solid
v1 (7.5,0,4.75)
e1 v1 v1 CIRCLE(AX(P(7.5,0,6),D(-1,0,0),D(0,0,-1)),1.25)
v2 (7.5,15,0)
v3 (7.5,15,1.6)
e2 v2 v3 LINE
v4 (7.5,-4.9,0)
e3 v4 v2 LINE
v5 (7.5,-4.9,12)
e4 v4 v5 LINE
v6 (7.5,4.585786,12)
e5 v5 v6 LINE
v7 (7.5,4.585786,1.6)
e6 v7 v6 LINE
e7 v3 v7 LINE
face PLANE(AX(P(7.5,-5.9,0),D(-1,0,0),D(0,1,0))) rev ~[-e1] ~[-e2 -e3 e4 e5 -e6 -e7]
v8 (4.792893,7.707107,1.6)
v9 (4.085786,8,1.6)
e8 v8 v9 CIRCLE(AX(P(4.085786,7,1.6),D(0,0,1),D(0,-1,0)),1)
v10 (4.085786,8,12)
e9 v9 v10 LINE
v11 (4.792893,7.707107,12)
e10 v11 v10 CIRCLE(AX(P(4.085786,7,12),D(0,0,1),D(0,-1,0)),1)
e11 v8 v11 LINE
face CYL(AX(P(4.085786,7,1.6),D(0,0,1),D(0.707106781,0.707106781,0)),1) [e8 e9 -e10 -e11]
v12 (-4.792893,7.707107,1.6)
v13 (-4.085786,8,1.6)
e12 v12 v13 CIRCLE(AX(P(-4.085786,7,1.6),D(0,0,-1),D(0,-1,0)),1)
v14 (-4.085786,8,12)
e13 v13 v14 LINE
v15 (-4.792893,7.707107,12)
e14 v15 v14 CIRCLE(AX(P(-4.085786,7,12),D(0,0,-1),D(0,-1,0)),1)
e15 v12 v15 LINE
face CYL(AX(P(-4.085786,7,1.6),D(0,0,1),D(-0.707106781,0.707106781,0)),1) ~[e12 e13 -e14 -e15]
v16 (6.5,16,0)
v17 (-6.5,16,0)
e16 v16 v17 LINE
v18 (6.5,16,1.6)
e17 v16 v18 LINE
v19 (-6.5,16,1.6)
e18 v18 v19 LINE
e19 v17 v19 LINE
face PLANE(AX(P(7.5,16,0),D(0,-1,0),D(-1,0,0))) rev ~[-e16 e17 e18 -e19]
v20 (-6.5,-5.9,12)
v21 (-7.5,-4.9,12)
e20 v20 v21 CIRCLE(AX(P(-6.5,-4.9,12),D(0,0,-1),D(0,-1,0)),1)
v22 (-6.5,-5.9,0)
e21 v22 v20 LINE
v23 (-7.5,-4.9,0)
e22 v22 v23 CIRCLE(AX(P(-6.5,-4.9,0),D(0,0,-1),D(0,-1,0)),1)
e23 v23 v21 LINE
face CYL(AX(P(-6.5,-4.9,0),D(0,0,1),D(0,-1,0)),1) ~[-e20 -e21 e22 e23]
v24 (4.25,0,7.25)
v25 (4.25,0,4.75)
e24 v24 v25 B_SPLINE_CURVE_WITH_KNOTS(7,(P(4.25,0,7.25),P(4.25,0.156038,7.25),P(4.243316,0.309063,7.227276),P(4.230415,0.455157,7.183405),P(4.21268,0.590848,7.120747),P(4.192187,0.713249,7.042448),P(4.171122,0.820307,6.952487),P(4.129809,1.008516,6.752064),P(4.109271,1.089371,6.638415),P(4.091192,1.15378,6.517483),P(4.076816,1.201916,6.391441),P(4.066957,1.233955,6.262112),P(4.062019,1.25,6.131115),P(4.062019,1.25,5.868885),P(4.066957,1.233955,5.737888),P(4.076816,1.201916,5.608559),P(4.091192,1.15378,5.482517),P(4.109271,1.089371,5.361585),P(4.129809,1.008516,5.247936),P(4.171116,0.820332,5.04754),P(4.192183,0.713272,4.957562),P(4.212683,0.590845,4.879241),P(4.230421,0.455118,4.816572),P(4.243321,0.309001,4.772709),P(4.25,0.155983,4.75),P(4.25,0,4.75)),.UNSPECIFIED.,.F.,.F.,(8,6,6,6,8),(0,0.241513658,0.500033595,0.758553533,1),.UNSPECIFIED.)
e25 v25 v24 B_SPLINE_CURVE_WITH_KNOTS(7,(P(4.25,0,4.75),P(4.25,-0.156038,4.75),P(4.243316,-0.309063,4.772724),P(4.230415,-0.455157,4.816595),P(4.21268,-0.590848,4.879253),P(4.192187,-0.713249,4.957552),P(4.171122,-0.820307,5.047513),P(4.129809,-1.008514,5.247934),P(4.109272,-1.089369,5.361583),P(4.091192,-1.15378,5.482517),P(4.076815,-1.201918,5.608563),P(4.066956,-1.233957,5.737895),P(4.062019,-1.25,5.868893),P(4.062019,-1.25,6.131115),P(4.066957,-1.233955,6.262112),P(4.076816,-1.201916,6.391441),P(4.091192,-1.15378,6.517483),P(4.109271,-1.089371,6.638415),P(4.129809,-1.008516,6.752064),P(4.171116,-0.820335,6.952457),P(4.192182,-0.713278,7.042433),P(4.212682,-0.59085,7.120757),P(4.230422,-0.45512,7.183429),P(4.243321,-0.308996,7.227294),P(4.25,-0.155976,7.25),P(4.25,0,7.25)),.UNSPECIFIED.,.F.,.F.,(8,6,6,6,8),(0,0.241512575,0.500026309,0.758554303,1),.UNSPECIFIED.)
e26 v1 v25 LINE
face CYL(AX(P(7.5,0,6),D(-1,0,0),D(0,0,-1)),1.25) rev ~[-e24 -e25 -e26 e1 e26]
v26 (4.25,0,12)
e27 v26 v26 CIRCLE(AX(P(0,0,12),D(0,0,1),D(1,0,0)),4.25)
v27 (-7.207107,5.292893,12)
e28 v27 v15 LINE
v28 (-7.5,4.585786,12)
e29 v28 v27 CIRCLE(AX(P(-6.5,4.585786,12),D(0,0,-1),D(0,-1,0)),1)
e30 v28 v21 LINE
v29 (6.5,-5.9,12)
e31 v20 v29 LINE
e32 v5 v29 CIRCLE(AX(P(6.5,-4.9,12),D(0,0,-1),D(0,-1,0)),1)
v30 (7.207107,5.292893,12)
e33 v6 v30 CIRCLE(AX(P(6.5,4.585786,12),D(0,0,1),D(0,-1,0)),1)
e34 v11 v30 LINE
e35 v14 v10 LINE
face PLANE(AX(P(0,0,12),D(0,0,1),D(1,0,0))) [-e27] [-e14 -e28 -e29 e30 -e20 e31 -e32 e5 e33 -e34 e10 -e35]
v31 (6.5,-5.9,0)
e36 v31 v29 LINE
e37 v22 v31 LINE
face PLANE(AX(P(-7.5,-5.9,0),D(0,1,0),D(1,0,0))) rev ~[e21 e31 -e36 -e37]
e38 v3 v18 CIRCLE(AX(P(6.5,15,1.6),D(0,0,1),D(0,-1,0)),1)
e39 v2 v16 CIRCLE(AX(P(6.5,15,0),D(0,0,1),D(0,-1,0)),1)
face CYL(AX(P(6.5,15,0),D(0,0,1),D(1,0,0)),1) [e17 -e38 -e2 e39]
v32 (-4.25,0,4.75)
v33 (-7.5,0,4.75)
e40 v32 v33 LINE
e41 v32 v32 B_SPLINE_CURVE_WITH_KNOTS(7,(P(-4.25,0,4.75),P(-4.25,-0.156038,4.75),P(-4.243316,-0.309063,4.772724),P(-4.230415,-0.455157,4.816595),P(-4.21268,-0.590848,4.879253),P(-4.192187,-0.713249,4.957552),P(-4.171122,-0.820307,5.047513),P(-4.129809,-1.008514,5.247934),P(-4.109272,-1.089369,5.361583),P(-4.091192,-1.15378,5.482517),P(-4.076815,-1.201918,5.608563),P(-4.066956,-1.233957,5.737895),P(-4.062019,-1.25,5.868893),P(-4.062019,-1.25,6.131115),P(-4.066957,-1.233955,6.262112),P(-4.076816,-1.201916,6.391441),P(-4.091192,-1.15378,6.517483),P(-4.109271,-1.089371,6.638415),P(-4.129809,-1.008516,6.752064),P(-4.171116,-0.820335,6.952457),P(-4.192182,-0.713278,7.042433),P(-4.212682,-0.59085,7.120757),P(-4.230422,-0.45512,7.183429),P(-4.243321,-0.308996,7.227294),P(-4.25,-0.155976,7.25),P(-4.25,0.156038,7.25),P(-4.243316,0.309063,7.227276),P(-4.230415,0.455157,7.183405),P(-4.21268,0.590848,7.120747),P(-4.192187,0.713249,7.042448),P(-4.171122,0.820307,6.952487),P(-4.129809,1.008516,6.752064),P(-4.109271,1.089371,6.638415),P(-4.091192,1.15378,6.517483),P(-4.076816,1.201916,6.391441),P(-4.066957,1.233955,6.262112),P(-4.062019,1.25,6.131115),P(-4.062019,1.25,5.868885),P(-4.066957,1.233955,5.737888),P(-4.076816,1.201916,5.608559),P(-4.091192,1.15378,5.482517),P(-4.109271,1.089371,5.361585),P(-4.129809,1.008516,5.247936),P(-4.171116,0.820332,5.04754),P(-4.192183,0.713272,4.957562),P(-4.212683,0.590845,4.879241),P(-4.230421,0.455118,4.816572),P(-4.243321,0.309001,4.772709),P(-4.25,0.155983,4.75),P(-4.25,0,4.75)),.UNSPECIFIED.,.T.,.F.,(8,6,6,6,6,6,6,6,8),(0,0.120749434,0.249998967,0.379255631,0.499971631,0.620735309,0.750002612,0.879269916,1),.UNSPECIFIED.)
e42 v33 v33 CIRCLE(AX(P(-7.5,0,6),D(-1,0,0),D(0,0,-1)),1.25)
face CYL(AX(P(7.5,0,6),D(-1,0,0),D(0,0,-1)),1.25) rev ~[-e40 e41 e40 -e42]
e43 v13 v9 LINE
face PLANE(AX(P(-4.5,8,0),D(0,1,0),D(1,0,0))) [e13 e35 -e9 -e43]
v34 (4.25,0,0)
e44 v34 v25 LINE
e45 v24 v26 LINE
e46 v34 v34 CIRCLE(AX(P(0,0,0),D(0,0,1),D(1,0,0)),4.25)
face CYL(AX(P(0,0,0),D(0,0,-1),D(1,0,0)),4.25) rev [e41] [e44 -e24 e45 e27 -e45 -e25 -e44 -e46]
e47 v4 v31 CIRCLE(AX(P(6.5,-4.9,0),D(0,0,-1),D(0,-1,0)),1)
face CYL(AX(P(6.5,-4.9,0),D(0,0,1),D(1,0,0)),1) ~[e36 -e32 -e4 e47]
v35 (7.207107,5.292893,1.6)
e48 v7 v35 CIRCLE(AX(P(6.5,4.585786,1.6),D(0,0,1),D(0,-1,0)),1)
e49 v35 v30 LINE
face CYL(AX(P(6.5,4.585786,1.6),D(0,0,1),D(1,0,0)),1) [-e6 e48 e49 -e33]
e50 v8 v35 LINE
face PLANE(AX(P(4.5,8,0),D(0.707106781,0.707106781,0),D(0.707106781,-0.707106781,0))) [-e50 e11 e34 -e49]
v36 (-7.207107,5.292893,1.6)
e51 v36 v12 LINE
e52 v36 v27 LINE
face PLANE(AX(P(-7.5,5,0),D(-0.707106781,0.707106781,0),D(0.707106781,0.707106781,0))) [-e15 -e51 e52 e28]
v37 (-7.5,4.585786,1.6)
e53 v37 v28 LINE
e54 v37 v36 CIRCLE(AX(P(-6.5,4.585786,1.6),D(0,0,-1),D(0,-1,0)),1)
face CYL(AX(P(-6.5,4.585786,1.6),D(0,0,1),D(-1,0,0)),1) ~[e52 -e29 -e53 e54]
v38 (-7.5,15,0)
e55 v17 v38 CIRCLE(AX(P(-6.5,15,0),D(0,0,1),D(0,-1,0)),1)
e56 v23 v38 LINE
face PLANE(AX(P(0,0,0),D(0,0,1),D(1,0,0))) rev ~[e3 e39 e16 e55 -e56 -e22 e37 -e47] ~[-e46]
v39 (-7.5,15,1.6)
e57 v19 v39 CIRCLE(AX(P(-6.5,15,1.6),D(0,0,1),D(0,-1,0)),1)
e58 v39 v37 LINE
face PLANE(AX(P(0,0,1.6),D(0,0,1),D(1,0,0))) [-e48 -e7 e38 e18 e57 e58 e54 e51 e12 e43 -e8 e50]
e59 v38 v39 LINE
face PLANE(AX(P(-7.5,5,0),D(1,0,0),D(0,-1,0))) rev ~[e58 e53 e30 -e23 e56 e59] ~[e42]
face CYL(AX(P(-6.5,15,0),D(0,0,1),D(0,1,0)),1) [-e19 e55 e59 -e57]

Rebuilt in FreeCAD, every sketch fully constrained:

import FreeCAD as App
import Part
import Sketcher
Q = App.Units.Quantity


def edges_at(feature, points):
    """Names of the edges that pass closest to the given points."""
    edges = feature.Shape.Edges
    near = lambda p: min(range(len(edges)), key=lambda i: edges[i].distToShape(Part.Vertex(*p))[0])
    return sorted({f"Edge{near(p) + 1}" for p in points})


def add_polygon(sketch, points):
    """Adds a closed chain of lines whose ends are joined by coincident constraints."""
    first, n = sketch.GeometryCount, len(points)
    for a, b in zip(points, points[1:] + points[:1]):
        sketch.addGeometry(Part.LineSegment(App.Vector(*a, 0), App.Vector(*b, 0)), False)
    for i in range(n):
        sketch.addConstraint(Sketcher.Constraint("Coincident", first + i, 2, first + (i + 1) % n, 1))

doc = App.newDocument("Part")
body = doc.addObject("PartDesign::Body", "Body")

sketch1 = body.newObject("Sketcher::SketchObject", "Sketch")
sketch1.AttachmentSupport = (doc.getObject("XY_Plane"), [""])
sketch1.MapMode = "FlatFace"
add_polygon(sketch1, [(7.5, -5.9), (7.5, 5), (4.5, 8), (-4.5, 8), (-7.5, 5), (-7.5, -5.9)])
sketch1.addGeometry(Part.Circle(App.Vector(0, 0, 0), App.Vector(0, 0, 1), 4.25), False)
sketch1.addConstraint(Sketcher.Constraint("Vertical", 0))
sketch1.addConstraint(Sketcher.Constraint("Horizontal", 2))
sketch1.addConstraint(Sketcher.Constraint("Vertical", 4))
sketch1.addConstraint(Sketcher.Constraint("Horizontal", 5))
sketch1.addConstraint(Sketcher.Constraint("Coincident", 6, 3, -1, 1))
sketch1.addConstraint(Sketcher.Constraint("Symmetric", 0, 2, 3, 2, -2))
sketch1.addConstraint(Sketcher.Constraint("Perpendicular", 1, 3))
sketch1.addConstraint(Sketcher.Constraint("Equal", 1, 3))
sketch1.addConstraint(Sketcher.Constraint("Diameter", 6, Q("8.5 mm")))
sketch1.addConstraint(Sketcher.Constraint("DistanceX", 5, 1, 5, 2, Q("15 mm")))
sketch1.addConstraint(Sketcher.Constraint("DistanceX", 1, 2, 0, 2, Q("3 mm")))
sketch1.addConstraint(Sketcher.Constraint("DistanceY", 4, 2, -1, 1, Q("5.9 mm")))
sketch1.addConstraint(Sketcher.Constraint("DistanceY", 4, 2, 2, 2, Q("13.9 mm")))
pad1 = body.newObject("PartDesign::Pad", "Pad")
pad1.Profile = sketch1
pad1.Length = 12

sketch2 = body.newObject("Sketcher::SketchObject", "Sketch001")
sketch2.AttachmentSupport = (doc.getObject("XY_Plane"), [""])
sketch2.MapMode = "FlatFace"
add_polygon(sketch2, [(7.5, 5), (7.5, 16), (-7.5, 16), (-7.5, 5), (-4.5, 8), (4.5, 8)])
sketch2.addConstraint(Sketcher.Constraint("Vertical", 0))
sketch2.addConstraint(Sketcher.Constraint("Horizontal", 1))
sketch2.addConstraint(Sketcher.Constraint("Vertical", 2))
sketch2.addConstraint(Sketcher.Constraint("Horizontal", 4))
sketch2.addConstraint(Sketcher.Constraint("Symmetric", 2, 2, 5, 2, -2))
sketch2.addConstraint(Sketcher.Constraint("Perpendicular", 3, 5))
sketch2.addConstraint(Sketcher.Constraint("Equal", 3, 5))
sketch2.addConstraint(Sketcher.Constraint("DistanceX", 1, 2, 1, 1, Q("15 mm")))
sketch2.addConstraint(Sketcher.Constraint("DistanceX", 2, 2, 3, 2, Q("3 mm")))
sketch2.addConstraint(Sketcher.Constraint("DistanceY", 0, 1, 0, 2, Q("11 mm")))
sketch2.addConstraint(Sketcher.Constraint("DistanceY", -1, 1, 0, 2, Q("16 mm")))
pad2 = body.newObject("PartDesign::Pad", "Pad001")
pad2.Profile = sketch2
pad2.Length = 1.6

sketch3 = body.newObject("Sketcher::SketchObject", "Sketch002")
sketch3.AttachmentSupport = (doc.getObject("YZ_Plane"), [""])
sketch3.MapMode = "FlatFace"
sketch3.AttachmentOffset = App.Placement(App.Vector(0, 0, 7.5), App.Rotation())
sketch3.addGeometry(Part.Circle(App.Vector(0, 6, 0), App.Vector(0, 0, 1), 1.25), False)
sketch3.addConstraint(Sketcher.Constraint("PointOnObject", 0, 3, -2))
sketch3.addConstraint(Sketcher.Constraint("Diameter", 0, Q("2.5 mm")))
sketch3.addConstraint(Sketcher.Constraint("DistanceY", -1, 1, 0, 3, Q("6 mm")))
doc.recompute()
hole = body.newObject("PartDesign::Hole", "Hole")
hole.Profile = sketch3
hole.ThreadType = "None"
hole.Diameter = 2.5
hole.DepthType = "Dimension"
hole.Depth = 16
hole.DrillPoint = "Angled"
hole.DrillPointAngle = 118
doc.recompute()

fillet = body.newObject("PartDesign::Fillet", "Fillet")
fillet.Base = (hole, edges_at(hole, [
    (-7.5, -5.9, 6),
    (7.5, -5.9, 6),
    (7.5, 5, 6.8),
    (4.5, 8, 6.8),
    (-4.5, 8, 6.8),
    (-7.5, 5, 6.8),
    (-7.5, 16, 0.8),
    (7.5, 16, 0.8),
]))
fillet.Radius = 1

doc.recompute()
